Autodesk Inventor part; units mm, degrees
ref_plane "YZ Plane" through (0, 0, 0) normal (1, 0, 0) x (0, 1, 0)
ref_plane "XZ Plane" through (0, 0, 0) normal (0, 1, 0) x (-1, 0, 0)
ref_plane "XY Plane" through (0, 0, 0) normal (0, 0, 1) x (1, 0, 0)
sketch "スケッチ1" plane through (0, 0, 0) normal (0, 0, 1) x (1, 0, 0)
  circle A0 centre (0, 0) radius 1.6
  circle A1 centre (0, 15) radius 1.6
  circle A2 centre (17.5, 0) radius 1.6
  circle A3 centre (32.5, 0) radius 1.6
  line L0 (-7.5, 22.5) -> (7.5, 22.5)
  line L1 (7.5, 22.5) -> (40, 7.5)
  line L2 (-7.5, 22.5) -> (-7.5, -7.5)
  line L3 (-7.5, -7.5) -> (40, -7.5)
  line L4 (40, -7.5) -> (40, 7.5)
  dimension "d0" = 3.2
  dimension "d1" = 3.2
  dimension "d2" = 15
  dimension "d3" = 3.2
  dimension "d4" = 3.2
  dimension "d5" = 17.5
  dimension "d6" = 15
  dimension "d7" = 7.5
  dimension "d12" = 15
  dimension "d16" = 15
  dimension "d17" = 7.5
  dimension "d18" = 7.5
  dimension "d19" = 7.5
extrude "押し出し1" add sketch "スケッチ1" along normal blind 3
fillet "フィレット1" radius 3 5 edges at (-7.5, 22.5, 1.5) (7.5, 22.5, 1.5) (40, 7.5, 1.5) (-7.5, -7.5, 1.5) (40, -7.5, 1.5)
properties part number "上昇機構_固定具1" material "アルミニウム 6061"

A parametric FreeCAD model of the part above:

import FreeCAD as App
import Part
import Sketcher
from FreeCAD import Vector


def edges_at(feature, points):
    """Names of the edges that pass closest to the given points."""
    edges = feature.Shape.Edges
    near = lambda p: min(range(len(edges)), key=lambda i: edges[i].distToShape(Part.Vertex(*p))[0])
    return sorted({f"Edge{near(p) + 1}" for p in points})

doc = App.newDocument("Part")
body = doc.addObject("PartDesign::Body", "Body")

sketch1 = body.newObject("Sketcher::SketchObject", "Sketch")
sketch1.AttachmentSupport = (doc.getObject("XY_Plane"), [""])
sketch1.MapMode = "FlatFace"
sketch1.addGeometry([
    Part.LineSegment(Vector(7.5, 22.5, 0), Vector(-7.5, 22.5, 0)),
    Part.LineSegment(Vector(-7.5, 22.5, 0), Vector(-7.5, -7.5, 0)),
    Part.LineSegment(Vector(-7.5, -7.5, 0), Vector(40, -7.5, 0)),
    Part.LineSegment(Vector(40, -7.5, 0), Vector(40, 7.5, 0)),
    Part.LineSegment(Vector(40, 7.5, 0), Vector(7.5, 22.5, 0)),
    Part.Circle(Vector(0, 0, 0), Vector(0, 0, 1), 1.6),
    Part.Circle(Vector(17.5, 0, 0), Vector(0, 0, 1), 1.6),
    Part.Circle(Vector(32.5, 0, 0), Vector(0, 0, 1), 1.6),
    Part.Circle(Vector(0, 15, 0), Vector(0, 0, 1), 1.6),
], False)
sketch1.addConstraint([
    Sketcher.Constraint("Coincident", 0, 2, 1, 1),
    Sketcher.Constraint("Coincident", 1, 2, 2, 1),
    Sketcher.Constraint("Coincident", 2, 2, 3, 1),
    Sketcher.Constraint("Coincident", 3, 2, 4, 1),
    Sketcher.Constraint("Coincident", 4, 2, 0, 1),
    Sketcher.Constraint("Horizontal", 0),
    Sketcher.Constraint("Vertical", 1),
    Sketcher.Constraint("Horizontal", 2),
    Sketcher.Constraint("Vertical", 3),
    Sketcher.Constraint("Coincident", 5, 3, -1, 1),
    Sketcher.Constraint("Equal", 5, 6),
    Sketcher.Constraint("Equal", 6, 7),
    Sketcher.Constraint("Equal", 7, 8),
    Sketcher.Constraint("PointOnObject", 6, 3, -1),
    Sketcher.Constraint("PointOnObject", 7, 3, -1),
    Sketcher.Constraint("PointOnObject", 8, 3, -2),
    Sketcher.Constraint("Equal", 0, 3),
    Sketcher.Constraint("Diameter", 5, 3.2),
    Sketcher.Constraint("DistanceX", 0, 2, 0, 1, 15.0),
    Sketcher.Constraint("DistanceY", -1, 1, 8, 3, 15.0),
    Sketcher.Constraint("DistanceX", 6, 3, 7, 3, 15.0),
    Sketcher.Constraint("DistanceX", -1, 1, 6, 3, 17.5),
    Sketcher.Constraint("DistanceX", 0, 2, -1, 1, 7.5),
    Sketcher.Constraint("DistanceY", 1, 2, -1, 1, 7.5),
    Sketcher.Constraint("DistanceY", 8, 3, 0, 2, 7.5),
    Sketcher.Constraint("DistanceX", 7, 3, 2, 2, 7.5),
])
pad1 = body.newObject("PartDesign::Pad", "Pad")
pad1.Profile = sketch1
pad1.Length = 3
doc.recompute()

fillet = body.newObject("PartDesign::Fillet", "Fillet")
fillet.Base = (pad1, edges_at(pad1, [
    (-7.5, 22.5, 1.5),
    (7.5, 22.5, 1.5),
    (40, 7.5, 1.5),
    (-7.5, -7.5, 1.5),
    (40, -7.5, 1.5),
]))
fillet.Radius = 3

doc.recompute()
